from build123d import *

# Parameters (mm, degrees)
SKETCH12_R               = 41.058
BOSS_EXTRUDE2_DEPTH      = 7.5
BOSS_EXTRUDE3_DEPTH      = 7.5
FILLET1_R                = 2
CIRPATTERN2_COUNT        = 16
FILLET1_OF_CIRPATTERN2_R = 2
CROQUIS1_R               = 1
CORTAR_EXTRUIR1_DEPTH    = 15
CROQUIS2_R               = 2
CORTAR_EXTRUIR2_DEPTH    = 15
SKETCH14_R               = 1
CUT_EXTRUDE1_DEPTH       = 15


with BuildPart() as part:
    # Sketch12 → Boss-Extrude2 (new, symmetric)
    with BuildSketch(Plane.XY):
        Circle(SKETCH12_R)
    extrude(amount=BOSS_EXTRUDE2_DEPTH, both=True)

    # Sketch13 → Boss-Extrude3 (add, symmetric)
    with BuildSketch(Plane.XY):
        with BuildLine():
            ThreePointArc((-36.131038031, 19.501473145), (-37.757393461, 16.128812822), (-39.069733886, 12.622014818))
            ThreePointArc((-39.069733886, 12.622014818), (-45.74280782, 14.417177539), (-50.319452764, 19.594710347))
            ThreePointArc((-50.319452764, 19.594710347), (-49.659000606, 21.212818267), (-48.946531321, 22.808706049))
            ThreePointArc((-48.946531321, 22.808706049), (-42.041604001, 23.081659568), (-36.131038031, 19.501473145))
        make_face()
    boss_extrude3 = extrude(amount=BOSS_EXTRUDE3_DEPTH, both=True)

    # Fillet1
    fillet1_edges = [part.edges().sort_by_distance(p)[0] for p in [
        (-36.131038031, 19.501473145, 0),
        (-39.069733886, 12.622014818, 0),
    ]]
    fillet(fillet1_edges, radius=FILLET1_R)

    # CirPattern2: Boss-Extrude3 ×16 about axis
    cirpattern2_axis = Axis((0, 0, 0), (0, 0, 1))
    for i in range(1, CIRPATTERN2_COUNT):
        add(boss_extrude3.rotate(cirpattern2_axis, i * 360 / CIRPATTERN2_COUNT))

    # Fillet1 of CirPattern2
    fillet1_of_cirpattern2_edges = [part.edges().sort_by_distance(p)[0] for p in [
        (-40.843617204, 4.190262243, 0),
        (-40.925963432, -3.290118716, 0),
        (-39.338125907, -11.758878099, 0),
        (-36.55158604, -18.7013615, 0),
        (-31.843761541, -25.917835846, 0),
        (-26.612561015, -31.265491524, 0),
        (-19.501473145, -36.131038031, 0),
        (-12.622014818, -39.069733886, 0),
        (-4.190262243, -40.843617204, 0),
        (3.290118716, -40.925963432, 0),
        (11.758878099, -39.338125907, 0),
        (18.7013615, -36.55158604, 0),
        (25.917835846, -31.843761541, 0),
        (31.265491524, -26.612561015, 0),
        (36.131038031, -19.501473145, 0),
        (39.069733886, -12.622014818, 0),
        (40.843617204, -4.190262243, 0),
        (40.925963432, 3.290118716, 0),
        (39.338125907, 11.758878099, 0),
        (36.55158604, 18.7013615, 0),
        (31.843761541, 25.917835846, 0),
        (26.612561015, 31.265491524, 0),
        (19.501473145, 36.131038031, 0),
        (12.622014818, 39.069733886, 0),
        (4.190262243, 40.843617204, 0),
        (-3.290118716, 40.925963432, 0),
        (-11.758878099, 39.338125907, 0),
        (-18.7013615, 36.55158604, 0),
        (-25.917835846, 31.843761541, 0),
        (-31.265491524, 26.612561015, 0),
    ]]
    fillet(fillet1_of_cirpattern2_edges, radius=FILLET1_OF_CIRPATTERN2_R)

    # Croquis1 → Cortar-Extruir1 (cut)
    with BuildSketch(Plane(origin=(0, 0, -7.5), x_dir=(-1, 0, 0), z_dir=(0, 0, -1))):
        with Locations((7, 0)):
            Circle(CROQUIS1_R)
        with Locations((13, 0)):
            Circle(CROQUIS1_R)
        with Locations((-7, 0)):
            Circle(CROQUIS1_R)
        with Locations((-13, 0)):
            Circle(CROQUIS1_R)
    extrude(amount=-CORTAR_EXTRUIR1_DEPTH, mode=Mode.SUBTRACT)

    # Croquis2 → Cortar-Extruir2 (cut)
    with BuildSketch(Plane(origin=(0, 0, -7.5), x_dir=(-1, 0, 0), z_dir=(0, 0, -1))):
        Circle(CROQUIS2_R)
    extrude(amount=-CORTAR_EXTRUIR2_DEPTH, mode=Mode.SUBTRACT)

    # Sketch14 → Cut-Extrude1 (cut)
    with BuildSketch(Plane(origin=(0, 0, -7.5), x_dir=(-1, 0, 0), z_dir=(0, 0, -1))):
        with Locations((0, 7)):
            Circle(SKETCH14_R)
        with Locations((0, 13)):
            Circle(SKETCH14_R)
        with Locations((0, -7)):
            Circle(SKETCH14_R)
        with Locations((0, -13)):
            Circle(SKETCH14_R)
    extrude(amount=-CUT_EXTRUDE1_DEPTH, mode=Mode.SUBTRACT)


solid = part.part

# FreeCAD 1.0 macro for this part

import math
import FreeCAD as App
import Part
import Sketcher
from FreeCAD import Vector
Q = App.Units.Quantity


def edges_at(feature, points):
    """Names of the edges that pass closest to the given points."""
    edges = feature.Shape.Edges
    near = lambda p: min(range(len(edges)), key=lambda i: edges[i].distToShape(Part.Vertex(*p))[0])
    return sorted({f"Edge{near(p) + 1}" for p in points})

doc = App.newDocument("Part")
body = doc.addObject("PartDesign::Body", "Body")

# Sketch on XY plane
sketch1 = body.newObject("Sketcher::SketchObject", "Sketch")
sketch1.AttachmentSupport = (doc.getObject("XY_Plane"), [""])
sketch1.MapMode = "FlatFace"
sketch1.addGeometry(Part.Circle(Vector(0, 0, 0), Vector(0, 0, 1), 41.058), False)
sketch1.addConstraint([
    Sketcher.Constraint("Coincident", 0, 3, -1, 1),
    Sketcher.Constraint("Diameter", 0, Q("82.116 mm")),
])
pad1 = body.newObject("PartDesign::Pad", "Pad")
pad1.Profile = sketch1
pad1.Length = 15
pad1.Midplane = True

# Sketch on XY plane
sketch2 = body.newObject("Sketcher::SketchObject", "Sketch001")
sketch2.AttachmentSupport = (doc.getObject("XY_Plane"), [""])
sketch2.MapMode = "FlatFace"
sketch2.addGeometry([
    Part.ArcOfCircle(Part.Circle(Vector(0, 0, 0), Vector(0, 0, 1), 41.058), math.radians(151.642358), math.radians(162.096236)),
    Part.ArcOfCircle(Part.Circle(Vector(-45.040148, 11.462334, 0), Vector(0, 0, 1), 12), math.radians(42.061531), math.radians(108.997807)),
    Part.ArcOfCircle(Part.Circle(Vector(0, 0, 0), Vector(0, 0, 1), 54), math.radians(155.014844), math.radians(158.72375)),
    Part.ArcOfCircle(Part.Circle(Vector(-39.420927, 24.616875, 0), Vector(0, 0, 1), 12), math.radians(-155.259214), math.radians(-88.322937)),
], False)
sketch2.addConstraint([
    Sketcher.Constraint("Coincident", 0, 1, 1, 1),
    Sketcher.Constraint("Coincident", 1, 2, 2, 1),
    Sketcher.Constraint("Coincident", 2, 2, 3, 1),
    Sketcher.Constraint("Coincident", 3, 2, 0, 2),
    Sketcher.Constraint("Coincident", 0, 3, -1, 1),
    Sketcher.Constraint("Coincident", 2, 3, -1, 1),
    Sketcher.Constraint("Equal", 1, 3),
    Sketcher.Constraint("Radius", 1, Q("12 mm")),
    Sketcher.Constraint("Radius", 2, Q("54 mm")),
    Sketcher.Constraint("Radius", 0, Q("41.058 mm")),
    Sketcher.Constraint("DistanceY", 0, 1, 3, 3, Q("5.115402 mm")),
    Sketcher.Constraint("DistanceX", 0, 1, -1, 1, Q("36.131038 mm")),
    Sketcher.Constraint("DistanceX", 1, 2, -1, 1, Q("48.946531 mm")),
    Sketcher.Constraint("DistanceY", -1, 1, 2, 2, Q("19.59471 mm")),
])
pad2 = body.newObject("PartDesign::Pad", "Pad001")
pad2.Profile = sketch2
pad2.Length = 15
pad2.Midplane = True
doc.recompute()

fillet = body.newObject("PartDesign::Fillet", "Fillet")
fillet.Base = (pad2, edges_at(pad2, [(-36.131, 19.501, 0), (-39.07, 12.622, 0)]))
fillet.Radius = 2
doc.recompute()

polarpattern = body.newObject("PartDesign::PolarPattern", "PolarPattern")
polarpattern.Originals = [pad2]
polarpattern.Axis = (doc.getObject("Z_Axis"), [""])
polarpattern.Angle = 360
polarpattern.Occurrences = 16
body.Tip = polarpattern
doc.recompute()

fillet2 = body.newObject("PartDesign::Fillet", "Fillet001")
fillet2.Base = (polarpattern, edges_at(polarpattern, [
    (-40.844, 4.19, 0),
    (-40.926, -3.29, 0),
    (-39.338, -11.759, 0),
    (-36.552, -18.701, 0),
    (-31.844, -25.918, 0),
    (-26.613, -31.265, 0),
    (-19.501, -36.131, 0),
    (-12.622, -39.07, 0),
    (-4.19, -40.844, 0),
    (3.29, -40.926, 0),
    (11.759, -39.338, 0),
    (18.701, -36.552, 0),
    (25.918, -31.844, 0),
    (31.265, -26.613, 0),
    (36.131, -19.501, 0),
    (39.07, -12.622, 0),
    (40.844, -4.19, 0),
    (40.926, 3.29, 0),
    (39.338, 11.759, 0),
    (36.552, 18.701, 0),
    (31.844, 25.918, 0),
    (26.613, 31.265, 0),
    (19.501, 36.131, 0),
    (12.622, 39.07, 0),
    (4.19, 40.844, 0),
    (-3.29, 40.926, 0),
    (-11.759, 39.338, 0),
    (-18.701, 36.552, 0),
    (-25.918, 31.844, 0),
    (-31.265, 26.613, 0),
]))
fillet2.Radius = 2

# Sketch on XY plane
sketch3 = body.newObject("Sketcher::SketchObject", "Sketch002")
sketch3.AttachmentSupport = (doc.getObject("XY_Plane"), [""])
sketch3.MapMode = "FlatFace"
sketch3.AttachmentOffset = App.Placement(Vector(0, 0, -7.5), App.Rotation())
sketch3.addGeometry([
    Part.Circle(Vector(-7, 0, 0), Vector(0, 0, 1), 1),
    Part.Circle(Vector(-13, 0, 0), Vector(0, 0, 1), 1),
    Part.Circle(Vector(7, 0, 0), Vector(0, 0, 1), 1),
    Part.Circle(Vector(13, 0, 0), Vector(0, 0, 1), 1),
], False)
sketch3.addConstraint([
    Sketcher.Constraint("Equal", 0, 1),
    Sketcher.Constraint("Equal", 1, 2),
    Sketcher.Constraint("Equal", 2, 3),
    Sketcher.Constraint("Symmetric", 0, 3, 2, 3, -1, 1),
    Sketcher.Constraint("Symmetric", 1, 3, 3, 3, -1, 1),
    Sketcher.Constraint("PointOnObject", 0, 3, -1),
    Sketcher.Constraint("PointOnObject", 1, 3, -1),
    Sketcher.Constraint("Diameter", 0, Q("2 mm")),
    Sketcher.Constraint("DistanceX", 0, 3, -1, 1, Q("7 mm")),
    Sketcher.Constraint("DistanceX", 1, 3, -1, 1, Q("13 mm")),
])
pocket1 = body.newObject("PartDesign::Pocket", "Pocket")
pocket1.Profile = sketch3
pocket1.Length = 15
pocket1.Reversed = True

# Sketch on XY plane
sketch4 = body.newObject("Sketcher::SketchObject", "Sketch003")
sketch4.AttachmentSupport = (doc.getObject("XY_Plane"), [""])
sketch4.MapMode = "FlatFace"
sketch4.AttachmentOffset = App.Placement(Vector(0, 0, -7.5), App.Rotation())
sketch4.addGeometry(Part.Circle(Vector(0, 0, 0), Vector(0, 0, 1), 2), False)
sketch4.addConstraint([
    Sketcher.Constraint("Coincident", 0, 3, -1, 1),
    Sketcher.Constraint("Diameter", 0, Q("4 mm")),
])
pocket2 = body.newObject("PartDesign::Pocket", "Pocket001")
pocket2.Profile = sketch4
pocket2.Length = 15
pocket2.Reversed = True

# Sketch on XY plane
sketch5 = body.newObject("Sketcher::SketchObject", "Sketch004")
sketch5.AttachmentSupport = (doc.getObject("XY_Plane"), [""])
sketch5.MapMode = "FlatFace"
sketch5.AttachmentOffset = App.Placement(Vector(0, 0, -7.5), App.Rotation())
sketch5.addGeometry([
    Part.Circle(Vector(0, 7, 0), Vector(0, 0, 1), 1),
    Part.Circle(Vector(0, 13, 0), Vector(0, 0, 1), 1),
    Part.Circle(Vector(0, -7, 0), Vector(0, 0, 1), 1),
    Part.Circle(Vector(0, -13, 0), Vector(0, 0, 1), 1),
], False)
sketch5.addConstraint([
    Sketcher.Constraint("Equal", 0, 1),
    Sketcher.Constraint("Equal", 1, 2),
    Sketcher.Constraint("Equal", 2, 3),
    Sketcher.Constraint("Symmetric", 0, 3, 2, 3, -1, 1),
    Sketcher.Constraint("Symmetric", 1, 3, 3, 3, -1, 1),
    Sketcher.Constraint("PointOnObject", 0, 3, -2),
    Sketcher.Constraint("PointOnObject", 1, 3, -2),
    Sketcher.Constraint("Diameter", 0, Q("2 mm")),
    Sketcher.Constraint("DistanceY", -1, 1, 0, 3, Q("7 mm")),
    Sketcher.Constraint("DistanceY", -1, 1, 1, 3, Q("13 mm")),
])
pocket3 = body.newObject("PartDesign::Pocket", "Pocket002")
pocket3.Profile = sketch5
pocket3.Length = 15
pocket3.Reversed = True

doc.recompute()
